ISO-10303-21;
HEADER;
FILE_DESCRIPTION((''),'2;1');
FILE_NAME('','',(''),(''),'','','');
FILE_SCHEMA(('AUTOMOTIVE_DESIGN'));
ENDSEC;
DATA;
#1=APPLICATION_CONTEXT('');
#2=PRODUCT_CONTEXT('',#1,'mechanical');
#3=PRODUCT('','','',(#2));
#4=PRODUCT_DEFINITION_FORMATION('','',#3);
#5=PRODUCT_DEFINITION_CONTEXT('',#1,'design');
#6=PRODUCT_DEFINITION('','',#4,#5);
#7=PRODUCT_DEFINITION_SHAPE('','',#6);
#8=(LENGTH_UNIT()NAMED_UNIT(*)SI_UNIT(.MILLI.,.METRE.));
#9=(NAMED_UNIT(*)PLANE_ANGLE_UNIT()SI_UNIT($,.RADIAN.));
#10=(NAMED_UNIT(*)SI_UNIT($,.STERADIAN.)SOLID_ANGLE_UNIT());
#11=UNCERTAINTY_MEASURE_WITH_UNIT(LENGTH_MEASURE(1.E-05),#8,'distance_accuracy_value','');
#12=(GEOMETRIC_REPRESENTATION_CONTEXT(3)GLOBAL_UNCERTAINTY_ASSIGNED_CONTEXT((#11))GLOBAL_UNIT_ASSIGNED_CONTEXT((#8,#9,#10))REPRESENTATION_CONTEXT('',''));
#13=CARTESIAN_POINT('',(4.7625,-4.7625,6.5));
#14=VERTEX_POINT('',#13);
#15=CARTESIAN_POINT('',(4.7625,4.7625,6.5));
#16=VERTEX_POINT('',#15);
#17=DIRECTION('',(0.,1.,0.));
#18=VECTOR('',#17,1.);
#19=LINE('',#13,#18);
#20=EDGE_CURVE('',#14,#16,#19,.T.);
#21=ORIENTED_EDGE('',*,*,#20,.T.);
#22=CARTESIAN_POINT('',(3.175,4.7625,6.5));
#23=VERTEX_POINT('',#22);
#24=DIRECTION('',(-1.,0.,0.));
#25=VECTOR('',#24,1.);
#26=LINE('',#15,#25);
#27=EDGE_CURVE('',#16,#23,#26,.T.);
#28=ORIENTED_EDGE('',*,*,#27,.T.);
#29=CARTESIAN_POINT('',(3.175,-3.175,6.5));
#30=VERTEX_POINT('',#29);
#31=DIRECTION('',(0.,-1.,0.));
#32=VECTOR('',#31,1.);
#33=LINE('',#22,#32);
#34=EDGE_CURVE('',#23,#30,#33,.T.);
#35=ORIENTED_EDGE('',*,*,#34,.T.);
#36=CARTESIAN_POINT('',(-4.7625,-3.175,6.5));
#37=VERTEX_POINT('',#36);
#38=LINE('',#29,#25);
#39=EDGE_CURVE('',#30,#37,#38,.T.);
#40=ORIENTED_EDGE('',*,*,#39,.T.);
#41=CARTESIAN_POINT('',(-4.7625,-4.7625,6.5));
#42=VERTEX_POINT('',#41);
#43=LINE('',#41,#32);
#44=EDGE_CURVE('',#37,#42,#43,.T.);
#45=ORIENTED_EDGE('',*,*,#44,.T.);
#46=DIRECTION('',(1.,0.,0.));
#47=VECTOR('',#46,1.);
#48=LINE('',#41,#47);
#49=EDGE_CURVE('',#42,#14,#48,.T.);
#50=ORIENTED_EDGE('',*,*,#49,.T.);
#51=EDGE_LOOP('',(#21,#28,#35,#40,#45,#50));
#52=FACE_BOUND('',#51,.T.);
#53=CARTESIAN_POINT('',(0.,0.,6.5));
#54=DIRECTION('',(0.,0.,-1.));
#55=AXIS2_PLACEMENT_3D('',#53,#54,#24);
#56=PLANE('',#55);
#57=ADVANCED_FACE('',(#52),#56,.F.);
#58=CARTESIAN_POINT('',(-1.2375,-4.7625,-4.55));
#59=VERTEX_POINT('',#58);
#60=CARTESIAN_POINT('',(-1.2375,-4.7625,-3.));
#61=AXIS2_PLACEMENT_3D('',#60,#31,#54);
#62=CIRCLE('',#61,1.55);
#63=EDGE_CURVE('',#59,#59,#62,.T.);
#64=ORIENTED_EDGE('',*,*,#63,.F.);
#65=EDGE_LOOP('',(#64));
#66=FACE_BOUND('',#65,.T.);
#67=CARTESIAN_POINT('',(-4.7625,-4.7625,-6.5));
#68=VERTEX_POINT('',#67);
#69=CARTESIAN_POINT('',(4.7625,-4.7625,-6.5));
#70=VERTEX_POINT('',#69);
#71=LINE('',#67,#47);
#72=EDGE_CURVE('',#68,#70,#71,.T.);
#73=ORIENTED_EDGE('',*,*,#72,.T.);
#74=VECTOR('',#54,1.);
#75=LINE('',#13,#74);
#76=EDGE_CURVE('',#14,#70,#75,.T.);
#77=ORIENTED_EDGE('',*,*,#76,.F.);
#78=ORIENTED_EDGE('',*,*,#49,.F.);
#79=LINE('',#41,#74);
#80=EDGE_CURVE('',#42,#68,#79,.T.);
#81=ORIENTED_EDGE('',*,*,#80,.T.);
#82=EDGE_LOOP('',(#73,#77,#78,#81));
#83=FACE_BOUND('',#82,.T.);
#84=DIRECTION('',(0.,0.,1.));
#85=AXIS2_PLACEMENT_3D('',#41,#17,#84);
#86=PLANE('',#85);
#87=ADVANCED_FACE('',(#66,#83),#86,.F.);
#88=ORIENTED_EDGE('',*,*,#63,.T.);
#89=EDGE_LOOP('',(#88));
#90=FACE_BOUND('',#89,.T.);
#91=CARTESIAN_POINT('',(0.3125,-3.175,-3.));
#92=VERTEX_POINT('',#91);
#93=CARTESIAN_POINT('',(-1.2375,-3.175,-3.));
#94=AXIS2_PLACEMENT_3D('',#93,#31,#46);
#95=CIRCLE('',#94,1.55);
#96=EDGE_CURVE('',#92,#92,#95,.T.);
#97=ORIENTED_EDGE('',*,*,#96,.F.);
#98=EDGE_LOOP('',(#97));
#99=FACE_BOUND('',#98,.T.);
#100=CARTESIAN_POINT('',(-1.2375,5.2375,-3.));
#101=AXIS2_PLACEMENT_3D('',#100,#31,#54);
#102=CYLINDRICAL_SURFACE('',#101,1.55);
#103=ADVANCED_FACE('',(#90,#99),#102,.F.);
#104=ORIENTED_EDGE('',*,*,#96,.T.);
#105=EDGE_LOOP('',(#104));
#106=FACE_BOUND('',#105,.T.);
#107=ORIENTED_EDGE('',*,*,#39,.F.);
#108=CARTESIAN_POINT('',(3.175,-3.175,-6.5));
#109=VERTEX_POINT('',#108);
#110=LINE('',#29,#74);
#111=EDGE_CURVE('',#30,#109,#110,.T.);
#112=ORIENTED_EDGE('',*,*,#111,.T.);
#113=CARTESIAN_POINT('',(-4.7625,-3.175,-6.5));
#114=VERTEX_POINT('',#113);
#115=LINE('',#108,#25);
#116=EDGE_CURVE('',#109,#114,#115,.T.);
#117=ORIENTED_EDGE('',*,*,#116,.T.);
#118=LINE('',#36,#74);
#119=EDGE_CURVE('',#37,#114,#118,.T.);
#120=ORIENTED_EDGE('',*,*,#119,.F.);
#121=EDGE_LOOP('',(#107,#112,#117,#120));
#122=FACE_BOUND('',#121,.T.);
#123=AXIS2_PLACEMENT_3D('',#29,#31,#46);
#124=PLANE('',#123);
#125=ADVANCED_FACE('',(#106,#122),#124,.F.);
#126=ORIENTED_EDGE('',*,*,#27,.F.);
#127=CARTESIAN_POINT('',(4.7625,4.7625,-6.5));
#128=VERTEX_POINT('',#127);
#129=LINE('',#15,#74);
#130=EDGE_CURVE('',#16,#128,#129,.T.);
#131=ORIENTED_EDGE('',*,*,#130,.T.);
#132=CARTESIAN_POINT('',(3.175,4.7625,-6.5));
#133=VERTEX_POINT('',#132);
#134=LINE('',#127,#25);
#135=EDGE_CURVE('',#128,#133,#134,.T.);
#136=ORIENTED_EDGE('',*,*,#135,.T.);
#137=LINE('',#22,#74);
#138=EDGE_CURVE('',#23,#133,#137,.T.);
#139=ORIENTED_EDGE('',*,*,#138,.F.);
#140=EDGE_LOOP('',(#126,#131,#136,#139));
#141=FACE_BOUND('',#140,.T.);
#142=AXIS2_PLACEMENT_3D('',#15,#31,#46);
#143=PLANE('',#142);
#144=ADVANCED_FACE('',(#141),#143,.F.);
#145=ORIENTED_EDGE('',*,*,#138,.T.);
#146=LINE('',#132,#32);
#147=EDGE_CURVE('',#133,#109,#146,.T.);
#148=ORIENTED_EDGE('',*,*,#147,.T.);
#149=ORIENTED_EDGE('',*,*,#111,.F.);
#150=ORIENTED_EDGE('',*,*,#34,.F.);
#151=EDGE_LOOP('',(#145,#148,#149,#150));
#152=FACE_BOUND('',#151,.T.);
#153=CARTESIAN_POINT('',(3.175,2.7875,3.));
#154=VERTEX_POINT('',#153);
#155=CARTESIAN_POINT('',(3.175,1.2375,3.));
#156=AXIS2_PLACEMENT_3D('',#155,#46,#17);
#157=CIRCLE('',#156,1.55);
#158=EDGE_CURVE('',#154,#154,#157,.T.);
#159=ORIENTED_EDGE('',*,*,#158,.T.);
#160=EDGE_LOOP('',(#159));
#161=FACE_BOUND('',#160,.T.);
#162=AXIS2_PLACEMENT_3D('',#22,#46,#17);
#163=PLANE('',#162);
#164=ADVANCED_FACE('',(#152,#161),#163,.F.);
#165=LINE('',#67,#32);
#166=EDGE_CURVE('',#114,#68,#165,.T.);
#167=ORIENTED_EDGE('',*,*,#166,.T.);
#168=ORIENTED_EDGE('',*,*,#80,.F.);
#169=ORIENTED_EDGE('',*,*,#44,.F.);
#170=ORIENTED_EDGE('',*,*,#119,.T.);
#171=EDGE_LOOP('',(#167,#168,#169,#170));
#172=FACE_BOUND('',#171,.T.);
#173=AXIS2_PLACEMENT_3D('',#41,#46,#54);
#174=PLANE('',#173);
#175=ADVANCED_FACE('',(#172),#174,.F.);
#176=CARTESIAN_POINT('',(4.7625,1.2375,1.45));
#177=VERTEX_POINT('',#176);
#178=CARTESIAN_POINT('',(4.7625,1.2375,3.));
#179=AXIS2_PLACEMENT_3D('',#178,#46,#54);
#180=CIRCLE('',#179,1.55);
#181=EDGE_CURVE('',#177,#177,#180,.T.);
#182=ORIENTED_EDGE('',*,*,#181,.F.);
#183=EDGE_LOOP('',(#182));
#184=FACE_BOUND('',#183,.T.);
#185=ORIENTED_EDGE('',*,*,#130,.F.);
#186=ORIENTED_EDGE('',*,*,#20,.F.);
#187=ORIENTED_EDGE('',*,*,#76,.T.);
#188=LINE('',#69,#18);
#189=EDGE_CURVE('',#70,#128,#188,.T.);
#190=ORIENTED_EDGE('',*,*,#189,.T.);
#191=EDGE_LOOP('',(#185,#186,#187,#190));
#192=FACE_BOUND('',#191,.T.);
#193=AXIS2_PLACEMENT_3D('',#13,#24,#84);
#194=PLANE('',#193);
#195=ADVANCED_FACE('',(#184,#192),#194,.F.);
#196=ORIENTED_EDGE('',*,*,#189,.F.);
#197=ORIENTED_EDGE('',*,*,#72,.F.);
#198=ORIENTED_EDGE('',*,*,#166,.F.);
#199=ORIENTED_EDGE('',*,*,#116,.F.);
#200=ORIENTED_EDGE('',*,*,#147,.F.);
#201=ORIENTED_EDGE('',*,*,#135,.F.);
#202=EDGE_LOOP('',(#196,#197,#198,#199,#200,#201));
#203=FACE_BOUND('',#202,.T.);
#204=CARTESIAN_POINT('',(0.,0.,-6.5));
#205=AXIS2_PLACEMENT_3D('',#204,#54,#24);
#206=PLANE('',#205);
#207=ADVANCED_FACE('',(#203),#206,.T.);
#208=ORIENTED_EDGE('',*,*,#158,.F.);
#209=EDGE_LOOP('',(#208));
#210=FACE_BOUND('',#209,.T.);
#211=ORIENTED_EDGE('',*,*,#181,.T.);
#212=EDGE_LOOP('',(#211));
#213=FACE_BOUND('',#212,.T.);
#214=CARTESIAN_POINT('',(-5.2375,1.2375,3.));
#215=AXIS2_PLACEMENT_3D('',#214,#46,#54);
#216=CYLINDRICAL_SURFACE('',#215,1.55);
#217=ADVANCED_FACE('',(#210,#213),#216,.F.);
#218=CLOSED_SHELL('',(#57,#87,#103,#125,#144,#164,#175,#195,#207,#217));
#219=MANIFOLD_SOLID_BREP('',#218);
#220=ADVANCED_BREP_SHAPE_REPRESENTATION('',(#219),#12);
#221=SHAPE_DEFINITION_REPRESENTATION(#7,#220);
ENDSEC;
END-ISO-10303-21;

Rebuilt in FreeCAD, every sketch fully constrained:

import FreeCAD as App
import Part
import Sketcher

V = App.Vector

doc = App.newDocument("Part")
params = doc.addObject("Spreadsheet::Sheet", "Params")
for row, (alias, value) in enumerate([
    ("pad1_length", "13 mm"),
    ("sketch2_diameter", "3.1 mm"),
    ("pocket1_length", "10 mm"),
    ("sketch3_diameter", "3.1 mm"),
    ("pocket2_length", "10 mm"),
], start=1):
    params.set(f"A{row}", alias)
    params.set(f"B{row}", "=" + value)
    params.setAlias(f"B{row}", alias)

body = doc.addObject("PartDesign::Body", "Body")

# Sketch on XY plane
sketch1 = body.newObject("Sketcher::SketchObject", "Sketch")
sketch1.AttachmentSupport = (doc.getObject("XY_Plane"), [""])
sketch1.MapMode = "FlatFace"
sketch1.addGeometry([
    Part.LineSegment(V(3.175, -3.175, 0), V(-4.7625, -3.175, 0)),  # 0
    Part.LineSegment(V(-4.7625, -3.175, 0), V(-4.7625, -4.7625, 0)),  # 1
    Part.LineSegment(V(-4.7625, -4.7625, 0), V(4.7625, -4.7625, 0)),  # 2
    Part.LineSegment(V(4.7625, -4.7625, 0), V(4.7625, 4.7625, 0)),  # 3
    Part.LineSegment(V(4.7625, 4.7625, 0), V(3.175, 4.7625, 0)),  # 4
    Part.LineSegment(V(3.175, 4.7625, 0), V(3.175, -3.175, 0)),  # 5
], False)
sketch1.addConstraint([
    Sketcher.Constraint("Coincident", 0, 2, 1, 1),
    Sketcher.Constraint("Coincident", 1, 2, 2, 1),
    Sketcher.Constraint("Coincident", 2, 2, 3, 1),
    Sketcher.Constraint("Coincident", 3, 2, 4, 1),
    Sketcher.Constraint("Coincident", 4, 2, 5, 1),
    Sketcher.Constraint("Coincident", 5, 2, 0, 1),
    Sketcher.Constraint("Horizontal", 0),
    Sketcher.Constraint("Vertical", 1),
    Sketcher.Constraint("Horizontal", 2),
    Sketcher.Constraint("Vertical", 3),
    Sketcher.Constraint("Horizontal", 4),
    Sketcher.Constraint("Vertical", 5),
    Sketcher.Constraint("Symmetric", 1, 2, 3, 2, -1, 1),
    Sketcher.Constraint("Equal", 4, 1),
    Sketcher.Constraint("Equal", 2, 3),
    Sketcher.Constraint("DistanceX", 2, 1, 2, 2, 9.525),
    Sketcher.Constraint("DistanceX", 0, 2, 0, 1, 7.9375),
])
pad1 = body.newObject("PartDesign::Pad", "Pad")
pad1.Profile = sketch1
pad1.setExpression("Length", "Params.pad1_length")
pad1.Midplane = True

# Sketch on YZ plane
sketch2 = body.newObject("Sketcher::SketchObject", "Sketch001")
sketch2.AttachmentSupport = (doc.getObject("YZ_Plane"), [""])
sketch2.MapMode = "FlatFace"
sketch2.AttachmentOffset = App.Placement(V(0, 0, 4.7625), App.Rotation())
sketch2.addGeometry(Part.Circle(V(1.2375, 3, 0), V(0, 0, 1), 1.55), False)
sketch2.addConstraint([
    Sketcher.Constraint("Diameter", 0, 3.1),
    Sketcher.Constraint("DistanceY", -1, 1, 0, 3, 3.0),
    Sketcher.Constraint("DistanceX", -1, 1, 0, 3, 1.2375),
])
sketch2.setExpression("Constraints[0]", "Params.sketch2_diameter")
pocket1 = body.newObject("PartDesign::Pocket", "Pocket")
pocket1.Profile = sketch2
pocket1.setExpression("Length", "Params.pocket1_length")

# Sketch on XZ plane
sketch3 = body.newObject("Sketcher::SketchObject", "Sketch002")
sketch3.AttachmentSupport = (doc.getObject("XZ_Plane"), [""])
sketch3.MapMode = "FlatFace"
sketch3.AttachmentOffset = App.Placement(V(0, 0, 4.7625), App.Rotation())
sketch3.addGeometry(Part.Circle(V(-1.2375, -3, 0), V(0, 0, 1), 1.55), False)
sketch3.addConstraint([
    Sketcher.Constraint("Diameter", 0, 3.1),
    Sketcher.Constraint("DistanceY", 0, 3, -1, 1, 3.0),
    Sketcher.Constraint("DistanceX", 0, 3, -1, 1, 1.2375),
])
sketch3.setExpression("Constraints[0]", "Params.sketch3_diameter")
pocket2 = body.newObject("PartDesign::Pocket", "Pocket001")
pocket2.Profile = sketch3
pocket2.setExpression("Length", "Params.pocket2_length")

doc.recompute()
